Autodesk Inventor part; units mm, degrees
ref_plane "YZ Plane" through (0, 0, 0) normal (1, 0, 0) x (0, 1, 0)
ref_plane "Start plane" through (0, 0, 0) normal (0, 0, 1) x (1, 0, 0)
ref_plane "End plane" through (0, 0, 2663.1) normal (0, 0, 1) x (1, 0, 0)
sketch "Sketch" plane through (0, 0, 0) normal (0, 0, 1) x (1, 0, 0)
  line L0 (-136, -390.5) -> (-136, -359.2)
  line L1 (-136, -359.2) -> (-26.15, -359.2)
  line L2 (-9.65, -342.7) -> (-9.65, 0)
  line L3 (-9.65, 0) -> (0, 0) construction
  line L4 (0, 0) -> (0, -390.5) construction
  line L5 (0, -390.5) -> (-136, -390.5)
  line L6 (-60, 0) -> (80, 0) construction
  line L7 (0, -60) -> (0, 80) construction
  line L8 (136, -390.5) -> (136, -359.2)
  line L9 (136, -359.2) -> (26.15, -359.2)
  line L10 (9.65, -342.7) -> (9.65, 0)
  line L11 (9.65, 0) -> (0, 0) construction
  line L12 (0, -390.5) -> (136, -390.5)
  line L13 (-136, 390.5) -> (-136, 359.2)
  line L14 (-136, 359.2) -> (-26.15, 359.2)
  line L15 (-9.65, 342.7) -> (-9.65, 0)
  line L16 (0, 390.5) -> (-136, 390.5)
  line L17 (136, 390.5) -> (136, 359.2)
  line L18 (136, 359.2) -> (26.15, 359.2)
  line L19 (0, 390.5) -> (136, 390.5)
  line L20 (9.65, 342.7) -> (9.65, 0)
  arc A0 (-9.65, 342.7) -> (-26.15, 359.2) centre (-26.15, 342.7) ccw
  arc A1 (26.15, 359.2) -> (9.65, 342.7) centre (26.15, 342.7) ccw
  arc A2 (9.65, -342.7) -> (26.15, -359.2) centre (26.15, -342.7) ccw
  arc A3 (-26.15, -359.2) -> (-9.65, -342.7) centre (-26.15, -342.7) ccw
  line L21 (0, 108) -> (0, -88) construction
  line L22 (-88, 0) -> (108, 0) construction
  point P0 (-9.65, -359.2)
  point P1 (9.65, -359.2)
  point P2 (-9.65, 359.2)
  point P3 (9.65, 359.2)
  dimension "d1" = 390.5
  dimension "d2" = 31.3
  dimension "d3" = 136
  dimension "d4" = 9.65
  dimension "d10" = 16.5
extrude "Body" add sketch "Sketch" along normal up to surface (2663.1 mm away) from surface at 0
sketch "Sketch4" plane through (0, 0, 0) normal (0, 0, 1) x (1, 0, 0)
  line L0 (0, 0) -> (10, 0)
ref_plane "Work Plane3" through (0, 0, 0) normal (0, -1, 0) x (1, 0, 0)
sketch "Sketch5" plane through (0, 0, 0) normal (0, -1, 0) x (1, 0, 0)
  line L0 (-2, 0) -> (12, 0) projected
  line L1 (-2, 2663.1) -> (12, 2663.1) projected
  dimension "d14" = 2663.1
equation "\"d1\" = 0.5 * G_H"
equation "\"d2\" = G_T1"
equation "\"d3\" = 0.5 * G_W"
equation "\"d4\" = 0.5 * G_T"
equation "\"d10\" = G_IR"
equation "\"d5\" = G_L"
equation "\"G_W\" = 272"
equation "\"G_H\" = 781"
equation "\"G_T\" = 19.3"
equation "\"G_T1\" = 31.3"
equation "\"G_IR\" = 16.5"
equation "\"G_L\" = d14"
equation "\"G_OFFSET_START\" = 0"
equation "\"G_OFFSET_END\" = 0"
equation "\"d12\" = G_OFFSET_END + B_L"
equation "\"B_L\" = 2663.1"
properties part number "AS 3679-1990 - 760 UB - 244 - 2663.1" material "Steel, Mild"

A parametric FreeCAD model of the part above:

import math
import FreeCAD as App
import Part
import Sketcher
from FreeCAD import Vector

doc = App.newDocument("Part")
body = doc.addObject("PartDesign::Body", "Body")

# Sketch on XY plane
sketch1 = doc.addObject("Sketcher::SketchObject", "Sketch")
body.addObject(sketch1)
sketch1.AttachmentSupport = (doc.XY_Plane, [""])
sketch1.MapMode = "FlatFace"
sketch1.addGeometry([
    Part.LineSegment(Vector(-136, -359, 0), Vector(-136, -390, 0)),  # 0
    Part.LineSegment(Vector(-136, -390, 0), Vector(136, -390, 0)),  # 1
    Part.LineSegment(Vector(136, -390, 0), Vector(136, -359, 0)),  # 2
    Part.LineSegment(Vector(136, -359, 0), Vector(26, -359, 0)),  # 3
    Part.ArcOfCircle(Part.Circle(Vector(26, -343, 0), Vector(0, 0, 1), 16), math.radians(180), math.radians(270)),  # 4
    Part.LineSegment(Vector(10, -343, 0), Vector(10, 343, 0)),  # 5
    Part.ArcOfCircle(Part.Circle(Vector(26, 343, 0), Vector(0, 0, 1), 16), math.radians(90), math.radians(180)),  # 6
    Part.LineSegment(Vector(26, 359, 0), Vector(136, 359, 0)),  # 7
    Part.LineSegment(Vector(136, 359, 0), Vector(136, 390, 0)),  # 8
    Part.LineSegment(Vector(136, 390, 0), Vector(-136, 390, 0)),  # 9
    Part.LineSegment(Vector(-136, 390, 0), Vector(-136, 359, 0)),  # 10
    Part.LineSegment(Vector(-136, 359, 0), Vector(-26, 359, 0)),  # 11
    Part.ArcOfCircle(Part.Circle(Vector(-26, 343, 0), Vector(0, 0, 1), 16), math.radians(0), math.radians(90)),  # 12
    Part.LineSegment(Vector(-10, 343, 0), Vector(-10, -343, 0)),  # 13
    Part.ArcOfCircle(Part.Circle(Vector(-26, -343, 0), Vector(0, 0, 1), 16), math.radians(-90), math.radians(0)),  # 14
    Part.LineSegment(Vector(-26, -359, 0), Vector(-136, -359, 0)),  # 15
], False)
sketch1.addConstraint([
    Sketcher.Constraint("Coincident", 0, 2, 1, 1),
    Sketcher.Constraint("Coincident", 1, 2, 2, 1),
    Sketcher.Constraint("Coincident", 2, 2, 3, 1),
    Sketcher.Constraint("Tangent", 3, 2, 4, 2),
    Sketcher.Constraint("Tangent", 4, 1, 5, 1),
    Sketcher.Constraint("Tangent", 5, 2, 6, 2),
    Sketcher.Constraint("Tangent", 6, 1, 7, 1),
    Sketcher.Constraint("Coincident", 7, 2, 8, 1),
    Sketcher.Constraint("Coincident", 8, 2, 9, 1),
    Sketcher.Constraint("Coincident", 9, 2, 10, 1),
    Sketcher.Constraint("Coincident", 10, 2, 11, 1),
    Sketcher.Constraint("Tangent", 11, 2, 12, 2),
    Sketcher.Constraint("Tangent", 12, 1, 13, 1),
    Sketcher.Constraint("Tangent", 13, 2, 14, 2),
    Sketcher.Constraint("Tangent", 14, 1, 15, 1),
    Sketcher.Constraint("Coincident", 15, 2, 0, 1),
    Sketcher.Constraint("Vertical", 0),
    Sketcher.Constraint("Horizontal", 1),
    Sketcher.Constraint("Vertical", 2),
    Sketcher.Constraint("Horizontal", 3),
    Sketcher.Constraint("Vertical", 5),
    Sketcher.Constraint("Horizontal", 7),
    Sketcher.Constraint("Vertical", 8),
    Sketcher.Constraint("Horizontal", 9),
    Sketcher.Constraint("Vertical", 10),
    Sketcher.Constraint("Horizontal", 11),
    Sketcher.Constraint("Vertical", 13),
    Sketcher.Constraint("Horizontal", 15),
    Sketcher.Constraint("Equal", 4, 6),
    Sketcher.Constraint("Equal", 6, 12),
    Sketcher.Constraint("Equal", 12, 14),
    Sketcher.Constraint("Symmetric", 4, 3, 12, 3, -1, 1),
    Sketcher.Constraint("Symmetric", 0, 2, 8, 2, -1, 1),
    Sketcher.Constraint("Symmetric", 7, 2, 10, 2, -2),
    Sketcher.Constraint("Symmetric", 2, 2, 15, 2, -2),
    Sketcher.Constraint("Radius", 4, 16.5),
    Sketcher.Constraint("DistanceY", 0, 2, 0, 1, 31.3),
    Sketcher.Constraint("DistanceX", 0, 2, -1, 1, 136.0),
    Sketcher.Constraint("DistanceY", 0, 2, -1, 1, 390.5),
    Sketcher.Constraint("DistanceX", -1, 1, 4, 1, 9.65),
])
pad1 = doc.addObject("PartDesign::Pad", "Pad")
body.addObject(pad1)
pad1.Profile = sketch1
pad1.Length = 2663.1

doc.recompute()
